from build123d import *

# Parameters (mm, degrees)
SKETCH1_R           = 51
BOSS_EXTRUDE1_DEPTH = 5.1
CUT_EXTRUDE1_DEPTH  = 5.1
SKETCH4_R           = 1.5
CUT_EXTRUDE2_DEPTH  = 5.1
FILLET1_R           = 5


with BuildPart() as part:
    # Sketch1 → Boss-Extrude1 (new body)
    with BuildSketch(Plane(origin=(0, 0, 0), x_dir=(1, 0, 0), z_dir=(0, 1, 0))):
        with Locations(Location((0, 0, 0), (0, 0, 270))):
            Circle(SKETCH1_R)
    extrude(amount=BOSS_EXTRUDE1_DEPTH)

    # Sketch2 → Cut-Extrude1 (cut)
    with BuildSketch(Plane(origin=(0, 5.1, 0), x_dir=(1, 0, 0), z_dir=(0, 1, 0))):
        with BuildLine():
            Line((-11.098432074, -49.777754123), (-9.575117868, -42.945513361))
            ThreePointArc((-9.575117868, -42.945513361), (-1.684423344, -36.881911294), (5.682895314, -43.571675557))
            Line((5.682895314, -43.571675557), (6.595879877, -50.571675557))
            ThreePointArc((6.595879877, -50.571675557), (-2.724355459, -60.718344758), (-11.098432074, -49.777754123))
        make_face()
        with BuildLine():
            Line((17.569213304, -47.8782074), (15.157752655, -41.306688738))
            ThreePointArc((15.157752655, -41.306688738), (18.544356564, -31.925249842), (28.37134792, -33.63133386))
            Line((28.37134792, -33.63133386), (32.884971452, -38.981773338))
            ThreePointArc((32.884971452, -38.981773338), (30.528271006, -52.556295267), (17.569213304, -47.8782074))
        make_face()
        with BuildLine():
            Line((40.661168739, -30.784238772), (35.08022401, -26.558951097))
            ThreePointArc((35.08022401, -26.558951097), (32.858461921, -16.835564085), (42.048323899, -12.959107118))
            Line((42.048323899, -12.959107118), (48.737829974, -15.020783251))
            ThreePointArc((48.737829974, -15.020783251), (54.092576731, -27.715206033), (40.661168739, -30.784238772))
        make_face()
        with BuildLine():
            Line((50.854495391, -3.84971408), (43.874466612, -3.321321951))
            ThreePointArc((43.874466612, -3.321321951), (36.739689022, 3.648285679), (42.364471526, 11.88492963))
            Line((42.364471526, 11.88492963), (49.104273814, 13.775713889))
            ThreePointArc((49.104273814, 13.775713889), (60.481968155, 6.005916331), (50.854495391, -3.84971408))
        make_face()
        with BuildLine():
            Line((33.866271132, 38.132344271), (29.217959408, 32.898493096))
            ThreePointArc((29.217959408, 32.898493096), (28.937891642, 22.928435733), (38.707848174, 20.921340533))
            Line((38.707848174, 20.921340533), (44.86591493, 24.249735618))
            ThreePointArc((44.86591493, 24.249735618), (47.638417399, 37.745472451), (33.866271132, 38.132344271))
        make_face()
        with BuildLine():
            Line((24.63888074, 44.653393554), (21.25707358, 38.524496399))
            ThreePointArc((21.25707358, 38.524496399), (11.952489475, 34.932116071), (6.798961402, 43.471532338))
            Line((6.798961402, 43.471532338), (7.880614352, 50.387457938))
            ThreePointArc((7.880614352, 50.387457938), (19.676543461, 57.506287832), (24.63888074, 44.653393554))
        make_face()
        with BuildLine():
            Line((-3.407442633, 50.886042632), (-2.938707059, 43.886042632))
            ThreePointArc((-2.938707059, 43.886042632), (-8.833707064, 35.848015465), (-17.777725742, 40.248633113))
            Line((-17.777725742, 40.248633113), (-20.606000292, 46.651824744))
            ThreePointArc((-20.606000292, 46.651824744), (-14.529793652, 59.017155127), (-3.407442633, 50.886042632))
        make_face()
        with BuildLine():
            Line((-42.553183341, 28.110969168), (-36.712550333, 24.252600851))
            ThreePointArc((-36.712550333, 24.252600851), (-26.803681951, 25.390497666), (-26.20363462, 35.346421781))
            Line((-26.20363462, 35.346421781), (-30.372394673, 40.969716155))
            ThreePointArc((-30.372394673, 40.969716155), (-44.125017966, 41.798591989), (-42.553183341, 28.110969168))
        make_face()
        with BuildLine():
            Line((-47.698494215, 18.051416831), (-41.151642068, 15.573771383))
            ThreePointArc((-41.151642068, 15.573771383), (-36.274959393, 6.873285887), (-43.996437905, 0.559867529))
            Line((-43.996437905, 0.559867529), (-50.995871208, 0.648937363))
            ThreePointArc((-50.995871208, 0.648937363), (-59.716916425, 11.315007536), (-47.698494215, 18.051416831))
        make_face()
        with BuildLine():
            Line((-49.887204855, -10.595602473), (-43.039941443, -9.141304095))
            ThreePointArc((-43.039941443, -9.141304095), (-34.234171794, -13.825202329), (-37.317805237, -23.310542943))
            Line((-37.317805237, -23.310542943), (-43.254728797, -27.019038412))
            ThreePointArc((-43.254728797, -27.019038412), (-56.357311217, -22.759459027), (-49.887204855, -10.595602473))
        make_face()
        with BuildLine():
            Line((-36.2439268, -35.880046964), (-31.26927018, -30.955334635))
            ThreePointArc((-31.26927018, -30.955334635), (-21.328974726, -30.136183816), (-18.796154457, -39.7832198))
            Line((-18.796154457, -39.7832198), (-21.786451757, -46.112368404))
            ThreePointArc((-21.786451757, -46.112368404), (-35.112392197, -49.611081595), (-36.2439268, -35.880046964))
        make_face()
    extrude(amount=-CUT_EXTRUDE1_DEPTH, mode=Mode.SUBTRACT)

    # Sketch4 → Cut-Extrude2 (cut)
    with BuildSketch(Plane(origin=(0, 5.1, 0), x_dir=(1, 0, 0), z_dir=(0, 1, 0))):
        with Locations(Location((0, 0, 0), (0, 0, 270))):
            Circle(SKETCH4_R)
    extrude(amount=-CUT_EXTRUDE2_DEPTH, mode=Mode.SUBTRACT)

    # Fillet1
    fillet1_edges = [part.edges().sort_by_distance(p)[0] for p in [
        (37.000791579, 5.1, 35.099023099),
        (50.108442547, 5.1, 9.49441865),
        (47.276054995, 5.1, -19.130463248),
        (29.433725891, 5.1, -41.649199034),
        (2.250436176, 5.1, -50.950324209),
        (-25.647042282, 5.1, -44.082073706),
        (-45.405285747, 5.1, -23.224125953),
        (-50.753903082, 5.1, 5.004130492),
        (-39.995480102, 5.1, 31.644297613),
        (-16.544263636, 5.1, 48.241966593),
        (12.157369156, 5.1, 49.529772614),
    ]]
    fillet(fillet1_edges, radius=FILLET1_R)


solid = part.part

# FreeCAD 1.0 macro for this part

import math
import FreeCAD as App
import Part
import Sketcher

V = App.Vector


def edges_at(feature, points):
    """Names of the edges that pass closest to the given points."""
    edges = feature.Shape.Edges
    near = lambda p: min(range(len(edges)), key=lambda i: edges[i].distToShape(Part.Vertex(*p))[0])
    return sorted({f"Edge{near(p) + 1}" for p in points})

doc = App.newDocument("Part")
body = doc.addObject("PartDesign::Body", "Body")

sketch1 = body.newObject("Sketcher::SketchObject", "Sketch")
sketch1.AttachmentSupport = (doc.getObject("XZ_Plane"), [""])
sketch1.MapMode = "FlatFace"
sketch1.addGeometry(Part.Circle(V(0, 0, 0), V(0, 0, 1), 51), False)
sketch1.addConstraint([
    Sketcher.Constraint("Coincident", 0, 3, -1, 1),
    Sketcher.Constraint("Diameter", 0, 102.0),
])
pad1 = body.newObject("PartDesign::Pad", "Pad")
pad1.Profile = sketch1
pad1.Length = 5.1
pad1.Reversed = True

sketch2 = body.newObject("Sketcher::SketchObject", "Sketch001")
sketch2.AttachmentSupport = (doc.getObject("XZ_Plane"), [""])
sketch2.MapMode = "FlatFace"
sketch2.AttachmentOffset = App.Placement(V(0, 0, -5.1), App.Rotation())
sketch2.addGeometry([
    Part.LineSegment(V(-10, 43, 0), V(-11, 50, 0)),
    Part.ArcOfCircle(Part.Circle(V(-2, 52, 0), V(0, 0, 1), 9), math.radians(-7), math.radians(193)),
    Part.LineSegment(V(7, 51, 0), V(6, 44, 0)),
    Part.ArcOfCircle(Part.Circle(V(-2, 45, 0), V(0, 0, 1), 8), math.radians(-167), math.radians(-8)),
    Part.LineSegment(V(15, 41, 0), V(18, 48, 0)),
    Part.ArcOfCircle(Part.Circle(V(26, 45, 0), V(0, 0, 1), 9), math.radians(-40), math.radians(160)),
    Part.LineSegment(V(33, 39, 0), V(28, 34, 0)),
    Part.ArcOfCircle(Part.Circle(V(22, 39, 0), V(0, 0, 1), 8), math.radians(160), math.radians(320)),
    Part.LineSegment(V(35, 27, 0), V(41, 31, 0)),
    Part.ArcOfCircle(Part.Circle(V(46, 24, 0), V(0, 0, 1), 9), math.radians(-73), math.radians(127)),
    Part.LineSegment(V(49, 15, 0), V(42, 13, 0)),
    Part.ArcOfCircle(Part.Circle(V(40, 20, 0), V(0, 0, 1), 8), math.radians(127), math.radians(287)),
    Part.LineSegment(V(44, 3, 0), V(51, 4, 0)),
    Part.ArcOfCircle(Part.Circle(V(52, -5, 0), V(0, 0, 1), 9), math.radians(-106), math.radians(94)),
    Part.LineSegment(V(49, -14, 0), V(42, -12, 0)),
    Part.ArcOfCircle(Part.Circle(V(44, -4, 0), V(0, 0, 1), 8), math.radians(94), math.radians(254)),
    Part.LineSegment(V(34, -38, 0), V(29, -33, 0)),
    Part.ArcOfCircle(Part.Circle(V(35, -28, 0), V(0, 0, 1), 8), math.radians(62), math.radians(222)),
    Part.LineSegment(V(39, -21, 0), V(45, -24, 0)),
    Part.ArcOfCircle(Part.Circle(V(41, -32, 0), V(0, 0, 1), 9), math.radians(-138), math.radians(62)),
    Part.LineSegment(V(21, -39, 0), V(25, -45, 0)),
    Part.ArcOfCircle(Part.Circle(V(17, -49, 0), V(0, 0, 1), 9), math.radians(-171), math.radians(29)),
    Part.LineSegment(V(8, -50, 0), V(7, -43, 0)),
    Part.ArcOfCircle(Part.Circle(V(14, -42, 0), V(0, 0, 1), 8), math.radians(29), math.radians(189)),
    Part.LineSegment(V(-3, -44, 0), V(-3, -51, 0)),
    Part.ArcOfCircle(Part.Circle(V(-12, -50, 0), V(0, 0, 1), 9), math.radians(156), math.radians(356)),
    Part.LineSegment(V(-21, -47, 0), V(-18, -40, 0)),
    Part.ArcOfCircle(Part.Circle(V(-11, -43, 0), V(0, 0, 1), 8), math.radians(-4), math.radians(156)),
    Part.LineSegment(V(-43, -28, 0), V(-37, -24, 0)),
    Part.ArcOfCircle(Part.Circle(V(-32, -31, 0), V(0, 0, 1), 8), math.radians(-37), math.radians(123)),
    Part.LineSegment(V(-26, -35, 0), V(-30, -41, 0)),
    Part.ArcOfCircle(Part.Circle(V(-38, -36, 0), V(0, 0, 1), 9), math.radians(123), math.radians(323)),
    Part.LineSegment(V(-41, -16, 0), V(-48, -18, 0)),
    Part.ArcOfCircle(Part.Circle(V(-51, -10, 0), V(0, 0, 1), 9), math.radians(91), math.radians(291)),
    Part.LineSegment(V(-51, -1, 0), V(-44, -1, 0)),
    Part.ArcOfCircle(Part.Circle(V(-44, -8, 0), V(0, 0, 1), 8), math.radians(-69), math.radians(91)),
    Part.LineSegment(V(-43, 9, 0), V(-50, 11, 0)),
    Part.ArcOfCircle(Part.Circle(V(-48, 19, 0), V(0, 0, 1), 9), math.radians(58), math.radians(258)),
    Part.LineSegment(V(-43, 27, 0), V(-37, 23, 0)),
    Part.ArcOfCircle(Part.Circle(V(-41, 17, 0), V(0, 0, 1), 8), math.radians(-102), math.radians(58)),
    Part.LineSegment(V(-31, 31, 0), V(-36, 36, 0)),
    Part.ArcOfCircle(Part.Circle(V(-30, 42, 0), V(0, 0, 1), 9), math.radians(25), math.radians(225)),
    Part.LineSegment(V(-22, 46, 0), V(-19, 40, 0)),
    Part.ArcOfCircle(Part.Circle(V(-26, 36, 0), V(0, 0, 1), 8), math.radians(-135), math.radians(25)),
], False)
sketch2.addConstraint([
    Sketcher.Constraint("Tangent", 0, 2, 1, 2),
    Sketcher.Constraint("Tangent", 1, 1, 2, 1),
    Sketcher.Constraint("Coincident", 2, 2, 3, 2),
    Sketcher.Constraint("Tangent", 3, 1, 0, 1),
    Sketcher.Constraint("Tangent", 4, 2, 5, 2),
    Sketcher.Constraint("Tangent", 5, 1, 6, 1),
    Sketcher.Constraint("Tangent", 6, 2, 7, 2),
    Sketcher.Constraint("Tangent", 7, 1, 4, 1),
    Sketcher.Constraint("Tangent", 8, 2, 9, 2),
    Sketcher.Constraint("Tangent", 9, 1, 10, 1),
    Sketcher.Constraint("Tangent", 10, 2, 11, 2),
    Sketcher.Constraint("Tangent", 11, 1, 8, 1),
    Sketcher.Constraint("Tangent", 12, 2, 13, 2),
    Sketcher.Constraint("Tangent", 13, 1, 14, 1),
    Sketcher.Constraint("Tangent", 14, 2, 15, 2),
    Sketcher.Constraint("Tangent", 15, 1, 12, 1),
    Sketcher.Constraint("Tangent", 16, 2, 17, 2),
    Sketcher.Constraint("Tangent", 17, 1, 18, 1),
    Sketcher.Constraint("Tangent", 18, 2, 19, 2),
    Sketcher.Constraint("Tangent", 19, 1, 16, 1),
    Sketcher.Constraint("Tangent", 20, 2, 21, 2),
    Sketcher.Constraint("Tangent", 21, 1, 22, 1),
    Sketcher.Constraint("Tangent", 22, 2, 23, 2),
    Sketcher.Constraint("Tangent", 23, 1, 20, 1),
    Sketcher.Constraint("Tangent", 24, 2, 25, 2),
    Sketcher.Constraint("Tangent", 25, 1, 26, 1),
    Sketcher.Constraint("Tangent", 26, 2, 27, 2),
    Sketcher.Constraint("Coincident", 27, 1, 24, 1),
    Sketcher.Constraint("Tangent", 28, 2, 29, 2),
    Sketcher.Constraint("Tangent", 29, 1, 30, 1),
    Sketcher.Constraint("Tangent", 30, 2, 31, 2),
    Sketcher.Constraint("Tangent", 31, 1, 28, 1),
    Sketcher.Constraint("Tangent", 32, 2, 33, 2),
    Sketcher.Constraint("Tangent", 33, 1, 34, 1),
    Sketcher.Constraint("Tangent", 34, 2, 35, 2),
    Sketcher.Constraint("Tangent", 35, 1, 32, 1),
    Sketcher.Constraint("Tangent", 36, 2, 37, 2),
    Sketcher.Constraint("Tangent", 37, 1, 38, 1),
    Sketcher.Constraint("Tangent", 38, 2, 39, 2),
    Sketcher.Constraint("Tangent", 39, 1, 36, 1),
    Sketcher.Constraint("Tangent", 40, 2, 41, 2),
    Sketcher.Constraint("Tangent", 41, 1, 42, 1),
    Sketcher.Constraint("Tangent", 42, 2, 43, 2),
    Sketcher.Constraint("Tangent", 43, 1, 40, 1),
    Sketcher.Constraint("Equal", 1, 5),
    Sketcher.Constraint("Equal", 5, 9),
    Sketcher.Constraint("Equal", 7, 11),
    Sketcher.Constraint("Equal", 9, 13),
    Sketcher.Constraint("Equal", 11, 15),
    Sketcher.Constraint("Equal", 15, 17),
    Sketcher.Constraint("Equal", 13, 19),
    Sketcher.Constraint("Equal", 19, 21),
    Sketcher.Constraint("Equal", 17, 23),
    Sketcher.Constraint("Equal", 21, 25),
    Sketcher.Constraint("Equal", 23, 29),
    Sketcher.Constraint("Equal", 25, 31),
    Sketcher.Constraint("Equal", 31, 33),
    Sketcher.Constraint("Equal", 29, 35),
    Sketcher.Constraint("Equal", 33, 37),
    Sketcher.Constraint("Equal", 35, 39),
    Sketcher.Constraint("Equal", 37, 41),
    Sketcher.Constraint("Equal", 39, 43),
    Sketcher.Constraint("Equal", 0, 4),
    Sketcher.Constraint("Equal", 6, 8),
    Sketcher.Constraint("Equal", 10, 12),
    Sketcher.Constraint("Equal", 14, 16),
    Sketcher.Constraint("Equal", 18, 20),
    Sketcher.Constraint("Equal", 22, 26),
    Sketcher.Constraint("Equal", 26, 28),
    Sketcher.Constraint("Equal", 30, 32),
    Sketcher.Constraint("Equal", 34, 36),
    Sketcher.Constraint("Equal", 38, 40),
    Sketcher.Constraint("Distance", 0, 7.0),
    Sketcher.Constraint("DistanceX", 25, 1, -1, 1, 20.606),
    Sketcher.Constraint("Radius", 1, 8.992676),
    Sketcher.Constraint("Radius", 3, 7.758504),
    Sketcher.Constraint("Radius", 7, 7.758387),
    Sketcher.Constraint("Radius", 27, 7.758395),
    Sketcher.Constraint("DistanceX", 27, 3, -1, 1, 10.680798),
    Sketcher.Constraint("DistanceY", 28, 2, -1, 1, 24.252601),
    Sketcher.Constraint("DistanceX", 1, 3, -1, 1, 2.321271),
    Sketcher.Constraint("DistanceX", 3, 3, -1, 1, 2.002551),
    Sketcher.Constraint("DistanceY", -1, 1, 3, 3, 44.63389),
    Sketcher.Constraint("DistanceY", -1, 1, 5, 3, 44.780281),
    Sketcher.Constraint("DistanceX", -1, 1, 9, 3, 46.089261),
    Sketcher.Constraint("DistanceY", -1, 1, 11, 3, 20.373361),
    Sketcher.Constraint("DistanceY", 15, 3, -1, 1, 4.41493),
    Sketcher.Constraint("DistanceX", -1, 1, 17, 3, 35.018851),
    Sketcher.Constraint("DistanceY", 17, 3, -1, 1, 27.746579),
    Sketcher.Constraint("DistanceY", 25, 3, -1, 1, 50.285219),
    Sketcher.Constraint("DistanceX", 31, 3, -1, 1, 37.596461),
    Sketcher.Constraint("DistanceX", 35, 3, -1, 1, 43.897718),
    Sketcher.Constraint("DistanceY", -1, 1, 41, 3, 42.270829),
    Sketcher.Constraint("DistanceX", 43, 3, -1, 1, 25.811009),
    Sketcher.Constraint("DistanceY", -1, 1, 43, 3, 36.468951),
    Sketcher.Constraint("DistanceX", -1, 1, 5, 1, 32.884971),
    Sketcher.Constraint("DistanceY", -1, 1, 7, 1, 41.306689),
    Sketcher.Constraint("DistanceX", -1, 1, 8, 2, 40.661169),
    Sketcher.Constraint("DistanceX", -1, 1, 14, 2, 42.364472),
    Sketcher.Constraint("DistanceY", 14, 2, -1, 1, 11.88493),
    Sketcher.Constraint("DistanceX", -1, 1, 16, 2, 29.217959),
    Sketcher.Constraint("DistanceX", -1, 1, 20, 2, 24.638881),
    Sketcher.Constraint("DistanceX", -1, 1, 22, 2, 6.798961),
    Sketcher.Constraint("DistanceX", 28, 2, -1, 1, 36.71255),
    Sketcher.Constraint("DistanceX", 33, 1, -1, 1, 50.995871),
    Sketcher.Constraint("DistanceY", 35, 1, -1, 1, 15.573771),
    Sketcher.Constraint("DistanceX", 37, 1, -1, 1, 43.254729),
    Sketcher.Constraint("DistanceY", -1, 1, 37, 1, 27.019038),
    Sketcher.Constraint("DistanceX", 39, 1, -1, 1, 43.039941),
    Sketcher.Constraint("Distance", 2, 7.059288),
    Sketcher.Constraint("Distance", 24, 7.015676),
    Sketcher.Constraint("DistanceY", 21, 3, -1, 1, 48.997893),
])
pocket1 = body.newObject("PartDesign::Pocket", "Pocket")
pocket1.Profile = sketch2
pocket1.Length = 5.1
pocket1.Reversed = True

sketch3 = body.newObject("Sketcher::SketchObject", "Sketch002")
sketch3.AttachmentSupport = (doc.getObject("XZ_Plane"), [""])
sketch3.MapMode = "FlatFace"
sketch3.AttachmentOffset = App.Placement(V(0, 0, -5.1), App.Rotation())
sketch3.addGeometry(Part.Circle(V(0, 0, 0), V(0, 0, 1), 1.5), False)
sketch3.addConstraint([
    Sketcher.Constraint("Coincident", 0, 3, -1, 1),
    Sketcher.Constraint("Diameter", 0, 3.0),
])
pocket2 = body.newObject("PartDesign::Pocket", "Pocket001")
pocket2.Profile = sketch3
pocket2.Length = 5.1
pocket2.Reversed = True
doc.recompute()

fillet = body.newObject("PartDesign::Fillet", "Fillet")
fillet.Base = (pocket2, edges_at(pocket2, [
    (37.001, 5.1, 35.099),
    (50.108, 5.1, 9.494),
    (47.276, 5.1, -19.13),
    (29.434, 5.1, -41.649),
    (2.25, 5.1, -50.95),
    (-25.647, 5.1, -44.082),
    (-45.405, 5.1, -23.224),
    (-50.754, 5.1, 5.004),
    (-39.995, 5.1, 31.644),
    (-16.544, 5.1, 48.242),
    (12.157, 5.1, 49.53),
]))
fillet.Radius = 5

doc.recompute()
